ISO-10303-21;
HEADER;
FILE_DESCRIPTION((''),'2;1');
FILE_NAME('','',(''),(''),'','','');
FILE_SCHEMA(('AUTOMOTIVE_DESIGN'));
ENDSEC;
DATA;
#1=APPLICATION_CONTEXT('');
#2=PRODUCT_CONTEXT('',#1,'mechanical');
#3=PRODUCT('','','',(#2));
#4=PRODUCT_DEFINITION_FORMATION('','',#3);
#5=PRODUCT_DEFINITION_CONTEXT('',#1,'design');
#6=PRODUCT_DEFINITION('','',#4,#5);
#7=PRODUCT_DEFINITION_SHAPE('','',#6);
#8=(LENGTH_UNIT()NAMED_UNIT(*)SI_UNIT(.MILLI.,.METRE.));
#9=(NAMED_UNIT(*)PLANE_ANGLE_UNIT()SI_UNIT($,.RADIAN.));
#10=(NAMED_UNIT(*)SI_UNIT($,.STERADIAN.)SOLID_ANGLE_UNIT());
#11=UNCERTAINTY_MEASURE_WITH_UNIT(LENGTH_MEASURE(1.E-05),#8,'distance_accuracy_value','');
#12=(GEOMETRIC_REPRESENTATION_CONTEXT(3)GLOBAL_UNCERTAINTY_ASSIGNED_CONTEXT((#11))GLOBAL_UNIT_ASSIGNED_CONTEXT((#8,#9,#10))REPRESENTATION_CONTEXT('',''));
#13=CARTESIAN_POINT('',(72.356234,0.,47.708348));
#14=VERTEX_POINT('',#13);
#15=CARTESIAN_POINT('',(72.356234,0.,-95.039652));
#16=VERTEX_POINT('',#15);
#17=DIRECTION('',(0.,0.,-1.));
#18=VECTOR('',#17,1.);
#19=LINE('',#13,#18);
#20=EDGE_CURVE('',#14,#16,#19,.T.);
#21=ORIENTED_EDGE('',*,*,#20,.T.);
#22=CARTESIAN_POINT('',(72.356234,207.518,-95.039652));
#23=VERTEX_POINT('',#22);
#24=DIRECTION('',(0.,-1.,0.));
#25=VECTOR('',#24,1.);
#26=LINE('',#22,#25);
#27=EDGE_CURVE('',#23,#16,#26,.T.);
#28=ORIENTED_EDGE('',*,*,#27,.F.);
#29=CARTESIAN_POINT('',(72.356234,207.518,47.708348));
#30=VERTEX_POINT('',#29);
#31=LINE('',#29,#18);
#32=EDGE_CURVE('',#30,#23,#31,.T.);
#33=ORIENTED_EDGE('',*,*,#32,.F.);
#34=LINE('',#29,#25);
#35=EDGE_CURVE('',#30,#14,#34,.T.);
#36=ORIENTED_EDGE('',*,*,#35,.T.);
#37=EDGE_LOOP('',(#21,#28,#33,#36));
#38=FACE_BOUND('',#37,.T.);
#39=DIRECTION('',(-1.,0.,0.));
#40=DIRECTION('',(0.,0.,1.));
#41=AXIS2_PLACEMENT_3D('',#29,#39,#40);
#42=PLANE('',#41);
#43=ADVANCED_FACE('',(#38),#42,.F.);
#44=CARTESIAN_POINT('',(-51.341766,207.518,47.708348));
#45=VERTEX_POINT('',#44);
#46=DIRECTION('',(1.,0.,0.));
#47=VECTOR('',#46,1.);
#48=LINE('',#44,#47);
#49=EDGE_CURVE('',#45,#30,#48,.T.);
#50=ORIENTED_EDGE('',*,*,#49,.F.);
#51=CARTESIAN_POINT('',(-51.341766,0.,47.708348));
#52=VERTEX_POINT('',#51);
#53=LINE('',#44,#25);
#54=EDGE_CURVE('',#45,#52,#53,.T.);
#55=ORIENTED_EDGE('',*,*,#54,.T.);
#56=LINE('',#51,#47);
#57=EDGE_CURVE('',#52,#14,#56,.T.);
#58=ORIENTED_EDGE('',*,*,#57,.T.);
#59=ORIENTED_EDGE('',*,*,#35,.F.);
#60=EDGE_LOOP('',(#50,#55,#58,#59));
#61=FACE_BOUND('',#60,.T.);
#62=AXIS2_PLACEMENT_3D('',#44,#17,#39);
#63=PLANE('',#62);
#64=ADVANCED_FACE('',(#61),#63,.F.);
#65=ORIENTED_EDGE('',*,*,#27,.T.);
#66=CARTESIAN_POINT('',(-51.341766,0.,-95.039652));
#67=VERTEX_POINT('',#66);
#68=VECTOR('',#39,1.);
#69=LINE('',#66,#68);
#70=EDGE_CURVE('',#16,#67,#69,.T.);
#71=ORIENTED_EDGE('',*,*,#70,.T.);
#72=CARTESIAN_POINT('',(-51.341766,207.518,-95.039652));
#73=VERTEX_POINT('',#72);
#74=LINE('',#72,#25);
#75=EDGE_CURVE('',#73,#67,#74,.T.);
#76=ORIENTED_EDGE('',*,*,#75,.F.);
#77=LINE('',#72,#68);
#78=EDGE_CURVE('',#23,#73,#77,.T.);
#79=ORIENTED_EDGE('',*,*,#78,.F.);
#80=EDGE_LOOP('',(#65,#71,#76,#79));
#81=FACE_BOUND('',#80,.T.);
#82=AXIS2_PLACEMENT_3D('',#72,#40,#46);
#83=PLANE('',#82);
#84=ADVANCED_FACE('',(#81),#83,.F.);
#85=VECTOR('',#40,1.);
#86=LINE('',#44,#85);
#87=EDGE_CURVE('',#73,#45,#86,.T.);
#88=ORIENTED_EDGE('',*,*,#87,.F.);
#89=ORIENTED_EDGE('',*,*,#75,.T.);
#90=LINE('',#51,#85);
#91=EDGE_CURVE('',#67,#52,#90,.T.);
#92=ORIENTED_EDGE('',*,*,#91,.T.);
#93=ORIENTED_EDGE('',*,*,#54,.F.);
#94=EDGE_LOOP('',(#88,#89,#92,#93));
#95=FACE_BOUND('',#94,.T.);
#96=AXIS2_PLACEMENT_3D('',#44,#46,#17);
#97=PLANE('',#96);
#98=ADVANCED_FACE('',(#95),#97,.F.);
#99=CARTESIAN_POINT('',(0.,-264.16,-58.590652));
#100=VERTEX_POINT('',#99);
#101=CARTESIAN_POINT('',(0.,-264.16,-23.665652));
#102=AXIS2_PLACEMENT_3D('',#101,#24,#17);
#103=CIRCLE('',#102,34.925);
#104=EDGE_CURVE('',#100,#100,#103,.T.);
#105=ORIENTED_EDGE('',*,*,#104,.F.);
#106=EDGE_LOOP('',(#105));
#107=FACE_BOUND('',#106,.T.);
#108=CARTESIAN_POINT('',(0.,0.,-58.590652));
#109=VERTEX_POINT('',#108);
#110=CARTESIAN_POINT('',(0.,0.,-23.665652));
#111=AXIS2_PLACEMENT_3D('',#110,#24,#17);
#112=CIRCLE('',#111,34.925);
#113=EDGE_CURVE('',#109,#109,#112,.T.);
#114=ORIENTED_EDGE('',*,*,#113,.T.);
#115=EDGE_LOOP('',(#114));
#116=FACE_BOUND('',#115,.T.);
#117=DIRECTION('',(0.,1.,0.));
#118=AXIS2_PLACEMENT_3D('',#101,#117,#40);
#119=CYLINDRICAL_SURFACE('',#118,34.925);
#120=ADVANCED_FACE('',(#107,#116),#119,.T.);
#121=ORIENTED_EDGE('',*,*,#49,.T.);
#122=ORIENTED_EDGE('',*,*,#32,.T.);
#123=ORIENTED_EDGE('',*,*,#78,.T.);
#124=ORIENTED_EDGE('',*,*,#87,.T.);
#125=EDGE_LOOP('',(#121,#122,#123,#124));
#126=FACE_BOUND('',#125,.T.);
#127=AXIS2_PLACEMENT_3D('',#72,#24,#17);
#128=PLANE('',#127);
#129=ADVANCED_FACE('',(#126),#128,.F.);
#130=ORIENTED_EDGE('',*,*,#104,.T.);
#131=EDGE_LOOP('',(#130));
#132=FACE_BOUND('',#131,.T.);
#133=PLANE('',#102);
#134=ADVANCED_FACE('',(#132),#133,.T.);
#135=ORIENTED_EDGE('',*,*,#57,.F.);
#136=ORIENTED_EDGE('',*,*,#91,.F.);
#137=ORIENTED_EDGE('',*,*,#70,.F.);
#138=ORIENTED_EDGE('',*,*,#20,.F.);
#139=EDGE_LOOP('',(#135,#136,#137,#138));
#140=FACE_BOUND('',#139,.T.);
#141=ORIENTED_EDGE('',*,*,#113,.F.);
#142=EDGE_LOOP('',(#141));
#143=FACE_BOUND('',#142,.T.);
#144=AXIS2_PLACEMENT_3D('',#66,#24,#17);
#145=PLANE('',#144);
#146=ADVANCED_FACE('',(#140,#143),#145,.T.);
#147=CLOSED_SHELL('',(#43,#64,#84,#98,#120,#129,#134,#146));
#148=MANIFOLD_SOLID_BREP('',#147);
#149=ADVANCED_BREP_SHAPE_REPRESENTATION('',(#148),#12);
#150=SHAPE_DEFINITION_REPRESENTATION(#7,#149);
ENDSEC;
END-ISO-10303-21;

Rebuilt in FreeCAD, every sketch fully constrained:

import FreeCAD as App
import Part
import Sketcher
Q = App.Units.Quantity

doc = App.newDocument("Part")
params = doc.addObject("Spreadsheet::Sheet", "Params")
for row, (alias, value) in enumerate([
    ("sketch1_width", "4.87 in"),
    ("sketch1_height", "5.62 in"),
    ("pad1_length", "8.17 in"),
    ("sketch2_diameter", "2.75 in"),
    ("pad2_length", "10.4 in"),
], start=1):
    params.set(f"A{row}", alias)
    params.set(f"B{row}", "=" + value)
    params.setAlias(f"B{row}", alias)

body = doc.addObject("PartDesign::Body", "Body")

sketch1 = body.newObject("Sketcher::SketchObject", "Sketch")
sketch1.AttachmentSupport = (doc.getObject("XZ_Plane"), [""])
sketch1.MapMode = "FlatFace"
sketch1.addGeometry([
    Part.LineSegment(App.Vector(-51, -95, 0), App.Vector(-51, 48, 0)),
    Part.LineSegment(App.Vector(-51, 48, 0), App.Vector(72, 48, 0)),
    Part.LineSegment(App.Vector(72, 48, 0), App.Vector(72, -95, 0)),
    Part.LineSegment(App.Vector(72, -95, 0), App.Vector(-51, -95, 0)),
], False)
sketch1.addConstraint([
    Sketcher.Constraint("Coincident", 0, 2, 1, 1),
    Sketcher.Constraint("Coincident", 1, 2, 2, 1),
    Sketcher.Constraint("Coincident", 2, 2, 3, 1),
    Sketcher.Constraint("Coincident", 3, 2, 0, 1),
    Sketcher.Constraint("Vertical", 0),
    Sketcher.Constraint("Horizontal", 1),
    Sketcher.Constraint("Vertical", 2),
    Sketcher.Constraint("Horizontal", 3),
    Sketcher.Constraint("DistanceX", 1, 1, 1, 2, Q("4.87 in")),
    Sketcher.Constraint("DistanceY", 0, 1, 0, 2, Q("5.62 in")),
    Sketcher.Constraint("DistanceY", -1, 1, 0, 2, 47.708348),
    Sketcher.Constraint("DistanceX", 0, 2, -1, 1, 51.341766),
])
sketch1.setExpression("Constraints[8]", "Params.sketch1_width")
sketch1.setExpression("Constraints[9]", "Params.sketch1_height")
pad1 = body.newObject("PartDesign::Pad", "Pad")
pad1.Profile = sketch1
pad1.setExpression("Length", "Params.pad1_length")
pad1.Reversed = True

sketch2 = body.newObject("Sketcher::SketchObject", "Sketch001")
sketch2.AttachmentSupport = (doc.getObject("XZ_Plane"), [""])
sketch2.MapMode = "FlatFace"
sketch2.addGeometry(Part.Circle(App.Vector(0, -24, 0), App.Vector(0, 0, 1), 35), False)
sketch2.addConstraint([
    Sketcher.Constraint("PointOnObject", 0, 3, -2),
    Sketcher.Constraint("Diameter", 0, Q("2.75 in")),
    Sketcher.Constraint("DistanceY", 0, 3, -1, 1, 23.665652),
])
sketch2.setExpression("Constraints[1]", "Params.sketch2_diameter")
pad2 = body.newObject("PartDesign::Pad", "Pad001")
pad2.Profile = sketch2
pad2.setExpression("Length", "Params.pad2_length")

doc.recompute()
